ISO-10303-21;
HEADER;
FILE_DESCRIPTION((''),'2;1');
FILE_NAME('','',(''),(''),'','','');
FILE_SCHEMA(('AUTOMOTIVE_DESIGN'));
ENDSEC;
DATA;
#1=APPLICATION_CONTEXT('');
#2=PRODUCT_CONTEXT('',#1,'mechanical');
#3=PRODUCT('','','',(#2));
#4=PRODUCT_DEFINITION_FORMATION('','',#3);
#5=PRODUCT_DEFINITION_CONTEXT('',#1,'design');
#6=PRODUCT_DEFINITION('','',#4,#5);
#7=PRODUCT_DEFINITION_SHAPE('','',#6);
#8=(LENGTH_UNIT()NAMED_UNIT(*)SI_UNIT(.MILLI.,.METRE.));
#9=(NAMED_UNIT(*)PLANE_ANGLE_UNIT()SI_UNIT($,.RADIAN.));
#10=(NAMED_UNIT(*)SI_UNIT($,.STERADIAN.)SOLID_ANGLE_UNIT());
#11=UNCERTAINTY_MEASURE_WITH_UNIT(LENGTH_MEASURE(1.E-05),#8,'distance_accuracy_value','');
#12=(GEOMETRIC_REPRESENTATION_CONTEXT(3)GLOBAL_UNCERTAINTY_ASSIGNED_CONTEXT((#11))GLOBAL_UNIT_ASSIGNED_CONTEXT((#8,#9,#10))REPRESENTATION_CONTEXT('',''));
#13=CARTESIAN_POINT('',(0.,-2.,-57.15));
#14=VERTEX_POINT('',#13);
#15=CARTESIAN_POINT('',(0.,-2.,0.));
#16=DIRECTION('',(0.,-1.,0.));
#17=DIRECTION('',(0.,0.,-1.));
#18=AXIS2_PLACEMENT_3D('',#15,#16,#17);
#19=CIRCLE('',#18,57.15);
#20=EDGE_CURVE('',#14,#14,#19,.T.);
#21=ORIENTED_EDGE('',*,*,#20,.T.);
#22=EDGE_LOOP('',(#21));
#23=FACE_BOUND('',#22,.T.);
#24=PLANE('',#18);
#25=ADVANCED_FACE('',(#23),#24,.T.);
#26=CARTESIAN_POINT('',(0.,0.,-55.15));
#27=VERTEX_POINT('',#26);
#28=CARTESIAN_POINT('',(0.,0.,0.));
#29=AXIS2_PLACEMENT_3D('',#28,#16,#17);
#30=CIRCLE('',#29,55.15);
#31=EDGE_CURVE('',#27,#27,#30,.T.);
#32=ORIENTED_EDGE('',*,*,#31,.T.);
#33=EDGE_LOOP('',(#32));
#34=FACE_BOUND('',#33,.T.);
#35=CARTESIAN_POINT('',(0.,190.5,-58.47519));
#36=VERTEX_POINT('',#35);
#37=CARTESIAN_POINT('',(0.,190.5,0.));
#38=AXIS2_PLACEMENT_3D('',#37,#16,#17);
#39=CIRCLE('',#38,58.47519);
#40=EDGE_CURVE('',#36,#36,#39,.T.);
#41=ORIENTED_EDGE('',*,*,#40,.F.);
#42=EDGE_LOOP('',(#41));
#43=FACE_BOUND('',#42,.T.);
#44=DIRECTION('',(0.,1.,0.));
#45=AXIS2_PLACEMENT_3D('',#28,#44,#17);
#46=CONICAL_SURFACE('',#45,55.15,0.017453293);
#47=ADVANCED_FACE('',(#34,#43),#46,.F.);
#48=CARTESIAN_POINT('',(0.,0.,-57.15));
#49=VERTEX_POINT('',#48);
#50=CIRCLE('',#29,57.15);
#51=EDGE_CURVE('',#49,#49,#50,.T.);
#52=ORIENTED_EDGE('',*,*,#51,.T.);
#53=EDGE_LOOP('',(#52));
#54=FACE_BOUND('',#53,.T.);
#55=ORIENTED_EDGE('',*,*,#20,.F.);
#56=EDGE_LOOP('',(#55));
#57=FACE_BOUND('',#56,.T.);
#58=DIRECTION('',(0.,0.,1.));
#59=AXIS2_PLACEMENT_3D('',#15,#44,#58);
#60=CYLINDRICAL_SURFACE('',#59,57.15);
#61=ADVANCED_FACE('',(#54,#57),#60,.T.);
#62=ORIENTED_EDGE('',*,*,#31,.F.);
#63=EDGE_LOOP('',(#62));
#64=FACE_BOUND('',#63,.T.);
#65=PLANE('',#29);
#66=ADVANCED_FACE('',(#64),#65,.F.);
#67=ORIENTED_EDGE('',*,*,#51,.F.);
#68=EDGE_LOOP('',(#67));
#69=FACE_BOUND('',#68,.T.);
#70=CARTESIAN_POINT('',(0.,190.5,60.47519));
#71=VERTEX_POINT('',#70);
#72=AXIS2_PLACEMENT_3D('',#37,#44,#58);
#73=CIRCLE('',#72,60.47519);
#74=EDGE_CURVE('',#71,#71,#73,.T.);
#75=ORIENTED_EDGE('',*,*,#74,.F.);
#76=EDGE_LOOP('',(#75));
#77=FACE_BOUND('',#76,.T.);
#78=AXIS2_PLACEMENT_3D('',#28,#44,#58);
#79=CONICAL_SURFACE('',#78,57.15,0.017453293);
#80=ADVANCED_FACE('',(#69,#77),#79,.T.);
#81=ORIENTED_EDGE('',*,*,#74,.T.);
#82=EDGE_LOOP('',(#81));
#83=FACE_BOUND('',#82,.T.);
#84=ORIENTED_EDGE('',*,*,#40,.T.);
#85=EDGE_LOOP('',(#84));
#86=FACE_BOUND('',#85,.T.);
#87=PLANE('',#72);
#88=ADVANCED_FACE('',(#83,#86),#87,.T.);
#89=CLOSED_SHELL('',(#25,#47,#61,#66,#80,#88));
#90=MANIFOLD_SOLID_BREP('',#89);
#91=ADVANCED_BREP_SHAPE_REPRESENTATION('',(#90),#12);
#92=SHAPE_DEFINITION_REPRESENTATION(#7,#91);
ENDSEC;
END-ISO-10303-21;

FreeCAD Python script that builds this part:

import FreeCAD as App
import Part
import Sketcher

V = App.Vector

doc = App.newDocument("Part")
body = doc.addObject("PartDesign::Body", "Body")

sketch1 = body.newObject("Sketcher::SketchObject", "Sketch")
sketch1.AttachmentSupport = (doc.getObject("XZ_Plane"), [""])
sketch1.MapMode = "FlatFace"
sketch1.addGeometry(Part.Circle(V(0, 0, 0), V(0, 0, 1), 57.15), False)
sketch1.addConstraint(Sketcher.Constraint("Coincident", 0, 3, -1, 1))
sketch1.addConstraint(Sketcher.Constraint("Diameter", 0, 114.3))
pad1 = body.newObject("PartDesign::Pad", "Pad")
pad1.Profile = sketch1
pad1.Length = 190.5
pad1.Reversed = True
pad1.TaperAngle = 1

sketch2 = body.newObject("Sketcher::SketchObject", "Sketch001")
sketch2.AttachmentSupport = (doc.getObject("XZ_Plane"), [""])
sketch2.MapMode = "FlatFace"
sketch2.addGeometry(Part.Circle(V(0, 0, 0), V(0, 0, 1), 55.15), False)
sketch2.addConstraint(Sketcher.Constraint("Coincident", 0, 3, -1, 1))
sketch2.addConstraint(Sketcher.Constraint("Diameter", 0, 110.3))
pocket1 = body.newObject("PartDesign::Pocket", "Pocket")
pocket1.Profile = sketch2
pocket1.Length = 190.5
pocket1.TaperAngle = 1

sketch3 = body.newObject("Sketcher::SketchObject", "Sketch002")
sketch3.AttachmentSupport = (doc.getObject("XZ_Plane"), [""])
sketch3.MapMode = "FlatFace"
sketch3.addGeometry(Part.Circle(V(0, 0, 0), V(0, 0, 1), 57.15), False)
sketch3.addConstraint(Sketcher.Constraint("Coincident", 0, 3, -1, 1))
sketch3.addConstraint(Sketcher.Constraint("Diameter", 0, 114.3))
pad2 = body.newObject("PartDesign::Pad", "Pad001")
pad2.Profile = sketch3
pad2.Length = 2

doc.recompute()
